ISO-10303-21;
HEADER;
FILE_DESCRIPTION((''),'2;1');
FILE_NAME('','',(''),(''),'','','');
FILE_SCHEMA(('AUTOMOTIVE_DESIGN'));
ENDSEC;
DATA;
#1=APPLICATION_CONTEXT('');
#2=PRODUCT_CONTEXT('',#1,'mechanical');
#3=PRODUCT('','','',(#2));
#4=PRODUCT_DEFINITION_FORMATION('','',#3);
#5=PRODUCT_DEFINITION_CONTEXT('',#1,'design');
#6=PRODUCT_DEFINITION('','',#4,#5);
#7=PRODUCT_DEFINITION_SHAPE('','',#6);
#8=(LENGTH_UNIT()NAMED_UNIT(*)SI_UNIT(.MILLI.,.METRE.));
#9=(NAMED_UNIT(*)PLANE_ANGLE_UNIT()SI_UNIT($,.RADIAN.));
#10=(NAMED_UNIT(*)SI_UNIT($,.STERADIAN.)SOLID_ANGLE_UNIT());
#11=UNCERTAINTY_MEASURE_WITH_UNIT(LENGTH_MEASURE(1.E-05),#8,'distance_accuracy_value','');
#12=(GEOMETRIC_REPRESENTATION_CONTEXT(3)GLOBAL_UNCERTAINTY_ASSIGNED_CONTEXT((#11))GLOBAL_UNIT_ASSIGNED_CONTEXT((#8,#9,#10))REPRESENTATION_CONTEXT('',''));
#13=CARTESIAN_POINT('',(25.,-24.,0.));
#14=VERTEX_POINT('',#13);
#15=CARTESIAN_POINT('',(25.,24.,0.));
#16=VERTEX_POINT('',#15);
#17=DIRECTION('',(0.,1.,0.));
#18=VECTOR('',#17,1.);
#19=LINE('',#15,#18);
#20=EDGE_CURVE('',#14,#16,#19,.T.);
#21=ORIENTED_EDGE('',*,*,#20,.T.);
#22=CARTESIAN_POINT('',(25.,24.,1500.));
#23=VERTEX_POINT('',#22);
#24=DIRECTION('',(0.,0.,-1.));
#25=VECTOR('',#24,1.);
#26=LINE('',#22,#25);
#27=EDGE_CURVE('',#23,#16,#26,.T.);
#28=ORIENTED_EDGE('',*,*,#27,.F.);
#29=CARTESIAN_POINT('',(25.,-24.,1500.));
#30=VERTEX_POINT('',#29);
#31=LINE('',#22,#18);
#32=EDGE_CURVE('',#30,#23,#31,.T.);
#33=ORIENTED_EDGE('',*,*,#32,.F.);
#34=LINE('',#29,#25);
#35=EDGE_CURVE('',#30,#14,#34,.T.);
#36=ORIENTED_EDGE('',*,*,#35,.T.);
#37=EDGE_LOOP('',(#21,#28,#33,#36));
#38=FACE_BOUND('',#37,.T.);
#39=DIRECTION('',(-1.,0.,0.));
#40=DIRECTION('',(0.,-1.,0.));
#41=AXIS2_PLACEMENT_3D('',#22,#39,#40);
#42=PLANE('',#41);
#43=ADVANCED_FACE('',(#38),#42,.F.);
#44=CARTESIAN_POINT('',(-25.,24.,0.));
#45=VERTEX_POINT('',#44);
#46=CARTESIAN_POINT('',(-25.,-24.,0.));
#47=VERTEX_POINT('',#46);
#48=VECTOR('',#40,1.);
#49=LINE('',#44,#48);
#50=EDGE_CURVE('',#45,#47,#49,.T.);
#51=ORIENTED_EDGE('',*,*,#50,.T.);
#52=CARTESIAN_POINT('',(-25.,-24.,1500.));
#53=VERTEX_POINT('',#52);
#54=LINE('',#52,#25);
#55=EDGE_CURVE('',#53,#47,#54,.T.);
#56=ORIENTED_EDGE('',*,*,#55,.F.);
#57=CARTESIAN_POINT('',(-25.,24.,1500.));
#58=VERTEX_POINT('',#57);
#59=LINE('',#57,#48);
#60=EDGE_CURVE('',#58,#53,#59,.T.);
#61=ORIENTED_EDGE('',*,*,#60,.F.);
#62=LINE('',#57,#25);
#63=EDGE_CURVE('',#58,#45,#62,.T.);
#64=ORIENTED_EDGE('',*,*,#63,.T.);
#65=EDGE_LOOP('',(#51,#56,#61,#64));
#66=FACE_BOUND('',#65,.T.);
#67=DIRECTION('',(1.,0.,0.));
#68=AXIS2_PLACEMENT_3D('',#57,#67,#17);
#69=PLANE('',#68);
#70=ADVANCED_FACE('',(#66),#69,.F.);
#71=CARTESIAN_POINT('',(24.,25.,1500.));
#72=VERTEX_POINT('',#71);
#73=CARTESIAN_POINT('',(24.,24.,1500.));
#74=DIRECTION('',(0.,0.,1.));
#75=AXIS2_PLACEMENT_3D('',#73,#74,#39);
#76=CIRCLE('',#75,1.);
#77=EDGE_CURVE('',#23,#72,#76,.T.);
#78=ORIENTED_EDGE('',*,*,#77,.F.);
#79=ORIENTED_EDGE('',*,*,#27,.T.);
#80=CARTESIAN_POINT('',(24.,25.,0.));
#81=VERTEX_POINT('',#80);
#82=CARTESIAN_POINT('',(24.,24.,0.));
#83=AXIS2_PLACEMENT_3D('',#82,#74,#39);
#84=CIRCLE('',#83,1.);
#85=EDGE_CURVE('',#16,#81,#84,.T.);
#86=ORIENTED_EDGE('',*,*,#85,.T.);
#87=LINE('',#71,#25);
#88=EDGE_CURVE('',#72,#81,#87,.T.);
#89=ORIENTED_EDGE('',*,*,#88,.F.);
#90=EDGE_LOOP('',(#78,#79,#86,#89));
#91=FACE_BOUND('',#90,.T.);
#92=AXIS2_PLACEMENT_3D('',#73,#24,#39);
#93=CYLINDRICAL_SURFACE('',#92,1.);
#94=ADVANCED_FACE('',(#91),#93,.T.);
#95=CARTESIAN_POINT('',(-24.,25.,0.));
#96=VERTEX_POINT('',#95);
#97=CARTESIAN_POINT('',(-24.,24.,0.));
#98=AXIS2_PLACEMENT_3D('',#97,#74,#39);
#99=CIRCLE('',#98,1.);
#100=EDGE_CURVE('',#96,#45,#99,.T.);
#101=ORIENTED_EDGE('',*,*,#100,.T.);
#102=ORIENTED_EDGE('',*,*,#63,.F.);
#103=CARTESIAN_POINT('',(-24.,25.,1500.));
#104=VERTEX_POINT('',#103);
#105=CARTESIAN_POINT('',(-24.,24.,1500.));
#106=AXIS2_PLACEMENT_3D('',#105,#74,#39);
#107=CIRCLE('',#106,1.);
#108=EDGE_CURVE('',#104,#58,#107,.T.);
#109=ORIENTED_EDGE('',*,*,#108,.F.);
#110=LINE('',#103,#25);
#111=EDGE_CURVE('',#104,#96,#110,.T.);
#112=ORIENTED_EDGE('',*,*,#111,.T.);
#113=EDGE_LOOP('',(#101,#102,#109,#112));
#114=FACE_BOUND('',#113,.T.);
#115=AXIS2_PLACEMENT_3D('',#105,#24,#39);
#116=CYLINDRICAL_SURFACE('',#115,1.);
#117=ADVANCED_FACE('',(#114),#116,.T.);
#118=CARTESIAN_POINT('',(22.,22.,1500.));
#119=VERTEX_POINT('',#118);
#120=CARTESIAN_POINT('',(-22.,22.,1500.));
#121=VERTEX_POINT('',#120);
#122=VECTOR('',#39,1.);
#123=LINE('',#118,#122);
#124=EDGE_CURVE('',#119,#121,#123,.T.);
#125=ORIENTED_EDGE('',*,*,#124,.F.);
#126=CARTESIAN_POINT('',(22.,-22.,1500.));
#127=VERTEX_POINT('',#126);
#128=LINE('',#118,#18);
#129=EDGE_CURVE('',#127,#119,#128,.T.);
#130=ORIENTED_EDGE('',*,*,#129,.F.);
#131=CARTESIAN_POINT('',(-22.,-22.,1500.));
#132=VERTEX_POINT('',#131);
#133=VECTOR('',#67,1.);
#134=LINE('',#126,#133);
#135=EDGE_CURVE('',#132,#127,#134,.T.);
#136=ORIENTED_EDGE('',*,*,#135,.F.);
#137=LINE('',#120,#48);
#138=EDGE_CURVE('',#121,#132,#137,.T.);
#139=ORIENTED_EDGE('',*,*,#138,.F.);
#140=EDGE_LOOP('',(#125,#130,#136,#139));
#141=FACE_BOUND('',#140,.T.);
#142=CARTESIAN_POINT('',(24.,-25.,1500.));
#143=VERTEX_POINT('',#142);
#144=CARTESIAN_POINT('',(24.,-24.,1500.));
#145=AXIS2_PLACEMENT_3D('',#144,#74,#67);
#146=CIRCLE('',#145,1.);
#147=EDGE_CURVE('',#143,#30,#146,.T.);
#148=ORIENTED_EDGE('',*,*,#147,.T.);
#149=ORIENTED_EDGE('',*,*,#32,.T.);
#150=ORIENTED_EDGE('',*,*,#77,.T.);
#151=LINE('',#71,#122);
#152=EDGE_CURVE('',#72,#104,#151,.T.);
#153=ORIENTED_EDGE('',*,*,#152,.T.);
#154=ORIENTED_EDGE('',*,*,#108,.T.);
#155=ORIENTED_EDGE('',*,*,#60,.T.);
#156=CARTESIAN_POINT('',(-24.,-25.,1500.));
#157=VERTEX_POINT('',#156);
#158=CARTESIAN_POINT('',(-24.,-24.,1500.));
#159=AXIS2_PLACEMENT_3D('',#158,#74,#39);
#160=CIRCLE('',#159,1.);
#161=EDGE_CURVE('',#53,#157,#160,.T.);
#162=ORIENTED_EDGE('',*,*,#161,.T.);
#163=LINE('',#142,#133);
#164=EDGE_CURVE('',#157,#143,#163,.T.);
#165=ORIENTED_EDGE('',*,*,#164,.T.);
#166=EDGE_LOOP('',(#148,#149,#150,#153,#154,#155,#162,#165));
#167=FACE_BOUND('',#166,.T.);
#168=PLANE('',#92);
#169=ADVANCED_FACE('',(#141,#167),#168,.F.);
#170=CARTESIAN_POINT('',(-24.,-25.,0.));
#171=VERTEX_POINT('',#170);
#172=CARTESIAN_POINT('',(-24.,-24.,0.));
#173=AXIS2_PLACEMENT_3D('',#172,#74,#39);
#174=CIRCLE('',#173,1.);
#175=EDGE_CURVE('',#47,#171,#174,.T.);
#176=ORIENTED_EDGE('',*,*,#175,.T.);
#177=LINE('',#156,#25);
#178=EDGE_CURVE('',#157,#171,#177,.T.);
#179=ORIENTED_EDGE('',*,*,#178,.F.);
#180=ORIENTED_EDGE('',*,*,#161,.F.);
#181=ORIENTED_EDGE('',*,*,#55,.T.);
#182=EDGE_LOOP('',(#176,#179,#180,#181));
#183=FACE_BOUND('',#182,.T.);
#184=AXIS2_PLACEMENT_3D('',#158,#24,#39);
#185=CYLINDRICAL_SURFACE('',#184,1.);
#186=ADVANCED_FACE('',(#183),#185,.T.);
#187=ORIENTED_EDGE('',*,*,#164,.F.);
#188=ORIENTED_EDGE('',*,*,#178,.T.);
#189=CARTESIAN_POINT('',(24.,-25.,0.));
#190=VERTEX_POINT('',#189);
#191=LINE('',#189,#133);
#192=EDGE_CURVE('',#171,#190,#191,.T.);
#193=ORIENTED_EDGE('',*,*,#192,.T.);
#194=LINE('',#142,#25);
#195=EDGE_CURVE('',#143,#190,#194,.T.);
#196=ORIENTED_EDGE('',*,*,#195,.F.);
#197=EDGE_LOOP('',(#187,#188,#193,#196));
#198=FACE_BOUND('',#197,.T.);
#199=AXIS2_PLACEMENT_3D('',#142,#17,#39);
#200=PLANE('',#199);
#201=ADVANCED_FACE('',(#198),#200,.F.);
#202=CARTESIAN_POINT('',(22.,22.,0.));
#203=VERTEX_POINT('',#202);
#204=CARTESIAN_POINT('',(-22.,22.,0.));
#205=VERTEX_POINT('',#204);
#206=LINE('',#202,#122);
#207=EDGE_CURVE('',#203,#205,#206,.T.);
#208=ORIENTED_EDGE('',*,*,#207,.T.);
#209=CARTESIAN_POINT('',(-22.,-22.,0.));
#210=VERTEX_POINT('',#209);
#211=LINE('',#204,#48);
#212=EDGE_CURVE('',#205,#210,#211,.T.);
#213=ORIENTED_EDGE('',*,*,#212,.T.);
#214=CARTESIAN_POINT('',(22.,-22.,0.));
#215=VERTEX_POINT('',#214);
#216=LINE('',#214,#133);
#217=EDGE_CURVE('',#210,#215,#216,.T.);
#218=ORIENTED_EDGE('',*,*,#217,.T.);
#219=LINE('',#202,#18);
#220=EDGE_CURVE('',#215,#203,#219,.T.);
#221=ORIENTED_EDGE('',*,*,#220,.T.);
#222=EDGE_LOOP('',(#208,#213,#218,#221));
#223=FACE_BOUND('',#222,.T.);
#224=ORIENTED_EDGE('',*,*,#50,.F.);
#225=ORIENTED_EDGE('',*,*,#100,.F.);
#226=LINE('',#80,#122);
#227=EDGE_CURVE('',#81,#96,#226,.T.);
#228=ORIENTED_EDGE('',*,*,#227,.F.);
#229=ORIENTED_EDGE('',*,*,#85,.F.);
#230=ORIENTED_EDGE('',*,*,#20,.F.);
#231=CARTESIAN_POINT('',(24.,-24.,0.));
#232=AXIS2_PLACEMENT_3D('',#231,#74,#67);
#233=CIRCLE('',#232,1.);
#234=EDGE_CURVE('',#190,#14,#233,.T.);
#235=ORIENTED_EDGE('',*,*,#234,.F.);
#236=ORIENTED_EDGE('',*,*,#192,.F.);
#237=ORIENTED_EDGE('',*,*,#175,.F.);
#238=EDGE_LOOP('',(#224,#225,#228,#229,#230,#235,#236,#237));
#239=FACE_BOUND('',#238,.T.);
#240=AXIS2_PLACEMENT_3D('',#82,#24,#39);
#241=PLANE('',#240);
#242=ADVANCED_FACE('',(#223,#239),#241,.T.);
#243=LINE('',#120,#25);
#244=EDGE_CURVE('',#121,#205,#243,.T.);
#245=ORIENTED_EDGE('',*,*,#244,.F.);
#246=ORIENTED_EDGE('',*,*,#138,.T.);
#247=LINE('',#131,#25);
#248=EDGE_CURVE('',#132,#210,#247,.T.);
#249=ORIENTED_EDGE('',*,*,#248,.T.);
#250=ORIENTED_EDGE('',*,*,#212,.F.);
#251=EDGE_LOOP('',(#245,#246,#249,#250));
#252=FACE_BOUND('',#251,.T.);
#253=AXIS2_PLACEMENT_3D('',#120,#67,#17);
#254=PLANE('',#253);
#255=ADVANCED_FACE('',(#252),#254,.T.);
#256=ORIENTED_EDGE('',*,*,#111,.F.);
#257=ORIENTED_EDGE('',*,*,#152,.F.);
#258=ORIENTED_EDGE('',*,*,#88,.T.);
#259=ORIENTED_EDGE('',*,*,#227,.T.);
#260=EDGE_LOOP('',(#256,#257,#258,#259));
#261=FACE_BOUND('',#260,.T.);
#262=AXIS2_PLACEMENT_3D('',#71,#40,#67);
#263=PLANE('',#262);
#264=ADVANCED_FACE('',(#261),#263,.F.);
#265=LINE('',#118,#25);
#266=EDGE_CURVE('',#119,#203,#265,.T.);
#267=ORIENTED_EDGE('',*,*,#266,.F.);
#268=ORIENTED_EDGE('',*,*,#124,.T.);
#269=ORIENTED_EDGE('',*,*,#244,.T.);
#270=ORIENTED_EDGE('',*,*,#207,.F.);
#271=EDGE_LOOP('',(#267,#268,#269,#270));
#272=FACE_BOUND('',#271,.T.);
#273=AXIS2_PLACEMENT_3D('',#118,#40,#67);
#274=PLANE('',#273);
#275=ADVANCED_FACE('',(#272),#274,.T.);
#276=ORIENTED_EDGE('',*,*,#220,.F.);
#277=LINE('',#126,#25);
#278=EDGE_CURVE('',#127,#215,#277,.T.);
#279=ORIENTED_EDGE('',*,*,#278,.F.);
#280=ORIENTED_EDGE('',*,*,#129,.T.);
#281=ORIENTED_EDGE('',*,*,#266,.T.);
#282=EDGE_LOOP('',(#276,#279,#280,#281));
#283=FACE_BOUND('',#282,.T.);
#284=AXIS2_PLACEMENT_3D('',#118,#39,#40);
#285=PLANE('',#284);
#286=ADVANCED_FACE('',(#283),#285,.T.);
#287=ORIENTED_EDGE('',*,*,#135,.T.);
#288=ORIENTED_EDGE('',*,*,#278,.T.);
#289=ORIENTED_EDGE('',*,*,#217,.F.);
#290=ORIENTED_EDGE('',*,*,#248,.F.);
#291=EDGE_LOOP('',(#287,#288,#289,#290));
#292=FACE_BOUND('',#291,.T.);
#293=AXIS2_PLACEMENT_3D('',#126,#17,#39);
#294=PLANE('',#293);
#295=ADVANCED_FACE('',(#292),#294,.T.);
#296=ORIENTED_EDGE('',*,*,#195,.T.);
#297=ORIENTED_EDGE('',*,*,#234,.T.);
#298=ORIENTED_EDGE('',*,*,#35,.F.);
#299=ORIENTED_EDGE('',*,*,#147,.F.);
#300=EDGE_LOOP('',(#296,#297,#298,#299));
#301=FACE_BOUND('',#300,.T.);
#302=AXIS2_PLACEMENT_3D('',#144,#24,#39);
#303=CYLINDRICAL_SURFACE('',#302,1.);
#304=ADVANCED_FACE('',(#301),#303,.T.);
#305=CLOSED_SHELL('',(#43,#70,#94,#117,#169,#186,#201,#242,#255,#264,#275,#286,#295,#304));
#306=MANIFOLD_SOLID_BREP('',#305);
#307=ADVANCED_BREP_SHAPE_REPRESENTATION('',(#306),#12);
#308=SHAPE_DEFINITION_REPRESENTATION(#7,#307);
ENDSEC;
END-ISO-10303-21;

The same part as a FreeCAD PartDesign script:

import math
import FreeCAD as App
import Part
import Sketcher


def add_polygon(sketch, points):
    """Adds a closed chain of lines whose ends are joined by coincident constraints."""
    first, n = sketch.GeometryCount, len(points)
    for a, b in zip(points, points[1:] + points[:1]):
        sketch.addGeometry(Part.LineSegment(App.Vector(*a, 0), App.Vector(*b, 0)), False)
    for i in range(n):
        sketch.addConstraint(Sketcher.Constraint("Coincident", first + i, 2, first + (i + 1) % n, 1))

doc = App.newDocument("Part")
body = doc.addObject("PartDesign::Body", "Body")

# Sketch on XY plane
sketch1 = doc.addObject("Sketcher::SketchObject", "Sketch")
body.addObject(sketch1)
sketch1.AttachmentSupport = (doc.XY_Plane, [""])
sketch1.MapMode = "FlatFace"
sketch1.addGeometry(Part.LineSegment(App.Vector(24, 25, 0), App.Vector(-24, 25, 0)), False)  # 0
sketch1.addGeometry(Part.ArcOfCircle(Part.Circle(App.Vector(-24, 24, 0), App.Vector(0, 0, 1), 1), math.radians(90), math.radians(180)), False)  # 1
sketch1.addGeometry(Part.LineSegment(App.Vector(-25, 24, 0), App.Vector(-25, -24, 0)), False)  # 2
sketch1.addGeometry(Part.ArcOfCircle(Part.Circle(App.Vector(-24, -24, 0), App.Vector(0, 0, 1), 1), math.radians(-180), math.radians(-90)), False)  # 3
sketch1.addGeometry(Part.LineSegment(App.Vector(-24, -25, 0), App.Vector(24, -25, 0)), False)  # 4
sketch1.addGeometry(Part.ArcOfCircle(Part.Circle(App.Vector(24, -24, 0), App.Vector(0, 0, 1), 1), math.radians(-90), math.radians(0)), False)  # 5
sketch1.addGeometry(Part.LineSegment(App.Vector(25, -24, 0), App.Vector(25, 24, 0)), False)  # 6
sketch1.addGeometry(Part.ArcOfCircle(Part.Circle(App.Vector(24, 24, 0), App.Vector(0, 0, 1), 1), math.radians(0), math.radians(90)), False)  # 7
add_polygon(sketch1, [(22, -22), (-22, -22), (-22, 22), (22, 22)])  # lines 8-11
sketch1.addConstraint(Sketcher.Constraint("Tangent", 0, 2, 1, 1))
sketch1.addConstraint(Sketcher.Constraint("Tangent", 1, 2, 2, 1))
sketch1.addConstraint(Sketcher.Constraint("Tangent", 2, 2, 3, 1))
sketch1.addConstraint(Sketcher.Constraint("Tangent", 3, 2, 4, 1))
sketch1.addConstraint(Sketcher.Constraint("Tangent", 4, 2, 5, 1))
sketch1.addConstraint(Sketcher.Constraint("Tangent", 5, 2, 6, 1))
sketch1.addConstraint(Sketcher.Constraint("Tangent", 6, 2, 7, 1))
sketch1.addConstraint(Sketcher.Constraint("Tangent", 7, 2, 0, 1))
sketch1.addConstraint(Sketcher.Constraint("Horizontal", 0))
sketch1.addConstraint(Sketcher.Constraint("Vertical", 2))
sketch1.addConstraint(Sketcher.Constraint("Horizontal", 4))
sketch1.addConstraint(Sketcher.Constraint("Vertical", 6))
sketch1.addConstraint(Sketcher.Constraint("Horizontal", 8))
sketch1.addConstraint(Sketcher.Constraint("Vertical", 9))
sketch1.addConstraint(Sketcher.Constraint("Horizontal", 10))
sketch1.addConstraint(Sketcher.Constraint("Vertical", 11))
sketch1.addConstraint(Sketcher.Constraint("Equal", 1, 3))
sketch1.addConstraint(Sketcher.Constraint("Equal", 3, 5))
sketch1.addConstraint(Sketcher.Constraint("Equal", 5, 7))
sketch1.addConstraint(Sketcher.Constraint("Symmetric", 1, 3, 5, 3, -1, 1))
sketch1.addConstraint(Sketcher.Constraint("Symmetric", 8, 2, 10, 2, -1, 1))
sketch1.addConstraint(Sketcher.Constraint("Equal", 4, 2))
sketch1.addConstraint(Sketcher.Constraint("Equal", 10, 9))
sketch1.addConstraint(Sketcher.Constraint("Radius", 1, 1.0))
sketch1.addConstraint(Sketcher.Constraint("DistanceX", 0, 2, 0, 1, 48.0))
sketch1.addConstraint(Sketcher.Constraint("DistanceX", 8, 2, 8, 1, 44.0))
pad1 = doc.addObject("PartDesign::Pad", "Pad")
body.addObject(pad1)
pad1.Profile = sketch1
pad1.Length = 1500

doc.recompute()
